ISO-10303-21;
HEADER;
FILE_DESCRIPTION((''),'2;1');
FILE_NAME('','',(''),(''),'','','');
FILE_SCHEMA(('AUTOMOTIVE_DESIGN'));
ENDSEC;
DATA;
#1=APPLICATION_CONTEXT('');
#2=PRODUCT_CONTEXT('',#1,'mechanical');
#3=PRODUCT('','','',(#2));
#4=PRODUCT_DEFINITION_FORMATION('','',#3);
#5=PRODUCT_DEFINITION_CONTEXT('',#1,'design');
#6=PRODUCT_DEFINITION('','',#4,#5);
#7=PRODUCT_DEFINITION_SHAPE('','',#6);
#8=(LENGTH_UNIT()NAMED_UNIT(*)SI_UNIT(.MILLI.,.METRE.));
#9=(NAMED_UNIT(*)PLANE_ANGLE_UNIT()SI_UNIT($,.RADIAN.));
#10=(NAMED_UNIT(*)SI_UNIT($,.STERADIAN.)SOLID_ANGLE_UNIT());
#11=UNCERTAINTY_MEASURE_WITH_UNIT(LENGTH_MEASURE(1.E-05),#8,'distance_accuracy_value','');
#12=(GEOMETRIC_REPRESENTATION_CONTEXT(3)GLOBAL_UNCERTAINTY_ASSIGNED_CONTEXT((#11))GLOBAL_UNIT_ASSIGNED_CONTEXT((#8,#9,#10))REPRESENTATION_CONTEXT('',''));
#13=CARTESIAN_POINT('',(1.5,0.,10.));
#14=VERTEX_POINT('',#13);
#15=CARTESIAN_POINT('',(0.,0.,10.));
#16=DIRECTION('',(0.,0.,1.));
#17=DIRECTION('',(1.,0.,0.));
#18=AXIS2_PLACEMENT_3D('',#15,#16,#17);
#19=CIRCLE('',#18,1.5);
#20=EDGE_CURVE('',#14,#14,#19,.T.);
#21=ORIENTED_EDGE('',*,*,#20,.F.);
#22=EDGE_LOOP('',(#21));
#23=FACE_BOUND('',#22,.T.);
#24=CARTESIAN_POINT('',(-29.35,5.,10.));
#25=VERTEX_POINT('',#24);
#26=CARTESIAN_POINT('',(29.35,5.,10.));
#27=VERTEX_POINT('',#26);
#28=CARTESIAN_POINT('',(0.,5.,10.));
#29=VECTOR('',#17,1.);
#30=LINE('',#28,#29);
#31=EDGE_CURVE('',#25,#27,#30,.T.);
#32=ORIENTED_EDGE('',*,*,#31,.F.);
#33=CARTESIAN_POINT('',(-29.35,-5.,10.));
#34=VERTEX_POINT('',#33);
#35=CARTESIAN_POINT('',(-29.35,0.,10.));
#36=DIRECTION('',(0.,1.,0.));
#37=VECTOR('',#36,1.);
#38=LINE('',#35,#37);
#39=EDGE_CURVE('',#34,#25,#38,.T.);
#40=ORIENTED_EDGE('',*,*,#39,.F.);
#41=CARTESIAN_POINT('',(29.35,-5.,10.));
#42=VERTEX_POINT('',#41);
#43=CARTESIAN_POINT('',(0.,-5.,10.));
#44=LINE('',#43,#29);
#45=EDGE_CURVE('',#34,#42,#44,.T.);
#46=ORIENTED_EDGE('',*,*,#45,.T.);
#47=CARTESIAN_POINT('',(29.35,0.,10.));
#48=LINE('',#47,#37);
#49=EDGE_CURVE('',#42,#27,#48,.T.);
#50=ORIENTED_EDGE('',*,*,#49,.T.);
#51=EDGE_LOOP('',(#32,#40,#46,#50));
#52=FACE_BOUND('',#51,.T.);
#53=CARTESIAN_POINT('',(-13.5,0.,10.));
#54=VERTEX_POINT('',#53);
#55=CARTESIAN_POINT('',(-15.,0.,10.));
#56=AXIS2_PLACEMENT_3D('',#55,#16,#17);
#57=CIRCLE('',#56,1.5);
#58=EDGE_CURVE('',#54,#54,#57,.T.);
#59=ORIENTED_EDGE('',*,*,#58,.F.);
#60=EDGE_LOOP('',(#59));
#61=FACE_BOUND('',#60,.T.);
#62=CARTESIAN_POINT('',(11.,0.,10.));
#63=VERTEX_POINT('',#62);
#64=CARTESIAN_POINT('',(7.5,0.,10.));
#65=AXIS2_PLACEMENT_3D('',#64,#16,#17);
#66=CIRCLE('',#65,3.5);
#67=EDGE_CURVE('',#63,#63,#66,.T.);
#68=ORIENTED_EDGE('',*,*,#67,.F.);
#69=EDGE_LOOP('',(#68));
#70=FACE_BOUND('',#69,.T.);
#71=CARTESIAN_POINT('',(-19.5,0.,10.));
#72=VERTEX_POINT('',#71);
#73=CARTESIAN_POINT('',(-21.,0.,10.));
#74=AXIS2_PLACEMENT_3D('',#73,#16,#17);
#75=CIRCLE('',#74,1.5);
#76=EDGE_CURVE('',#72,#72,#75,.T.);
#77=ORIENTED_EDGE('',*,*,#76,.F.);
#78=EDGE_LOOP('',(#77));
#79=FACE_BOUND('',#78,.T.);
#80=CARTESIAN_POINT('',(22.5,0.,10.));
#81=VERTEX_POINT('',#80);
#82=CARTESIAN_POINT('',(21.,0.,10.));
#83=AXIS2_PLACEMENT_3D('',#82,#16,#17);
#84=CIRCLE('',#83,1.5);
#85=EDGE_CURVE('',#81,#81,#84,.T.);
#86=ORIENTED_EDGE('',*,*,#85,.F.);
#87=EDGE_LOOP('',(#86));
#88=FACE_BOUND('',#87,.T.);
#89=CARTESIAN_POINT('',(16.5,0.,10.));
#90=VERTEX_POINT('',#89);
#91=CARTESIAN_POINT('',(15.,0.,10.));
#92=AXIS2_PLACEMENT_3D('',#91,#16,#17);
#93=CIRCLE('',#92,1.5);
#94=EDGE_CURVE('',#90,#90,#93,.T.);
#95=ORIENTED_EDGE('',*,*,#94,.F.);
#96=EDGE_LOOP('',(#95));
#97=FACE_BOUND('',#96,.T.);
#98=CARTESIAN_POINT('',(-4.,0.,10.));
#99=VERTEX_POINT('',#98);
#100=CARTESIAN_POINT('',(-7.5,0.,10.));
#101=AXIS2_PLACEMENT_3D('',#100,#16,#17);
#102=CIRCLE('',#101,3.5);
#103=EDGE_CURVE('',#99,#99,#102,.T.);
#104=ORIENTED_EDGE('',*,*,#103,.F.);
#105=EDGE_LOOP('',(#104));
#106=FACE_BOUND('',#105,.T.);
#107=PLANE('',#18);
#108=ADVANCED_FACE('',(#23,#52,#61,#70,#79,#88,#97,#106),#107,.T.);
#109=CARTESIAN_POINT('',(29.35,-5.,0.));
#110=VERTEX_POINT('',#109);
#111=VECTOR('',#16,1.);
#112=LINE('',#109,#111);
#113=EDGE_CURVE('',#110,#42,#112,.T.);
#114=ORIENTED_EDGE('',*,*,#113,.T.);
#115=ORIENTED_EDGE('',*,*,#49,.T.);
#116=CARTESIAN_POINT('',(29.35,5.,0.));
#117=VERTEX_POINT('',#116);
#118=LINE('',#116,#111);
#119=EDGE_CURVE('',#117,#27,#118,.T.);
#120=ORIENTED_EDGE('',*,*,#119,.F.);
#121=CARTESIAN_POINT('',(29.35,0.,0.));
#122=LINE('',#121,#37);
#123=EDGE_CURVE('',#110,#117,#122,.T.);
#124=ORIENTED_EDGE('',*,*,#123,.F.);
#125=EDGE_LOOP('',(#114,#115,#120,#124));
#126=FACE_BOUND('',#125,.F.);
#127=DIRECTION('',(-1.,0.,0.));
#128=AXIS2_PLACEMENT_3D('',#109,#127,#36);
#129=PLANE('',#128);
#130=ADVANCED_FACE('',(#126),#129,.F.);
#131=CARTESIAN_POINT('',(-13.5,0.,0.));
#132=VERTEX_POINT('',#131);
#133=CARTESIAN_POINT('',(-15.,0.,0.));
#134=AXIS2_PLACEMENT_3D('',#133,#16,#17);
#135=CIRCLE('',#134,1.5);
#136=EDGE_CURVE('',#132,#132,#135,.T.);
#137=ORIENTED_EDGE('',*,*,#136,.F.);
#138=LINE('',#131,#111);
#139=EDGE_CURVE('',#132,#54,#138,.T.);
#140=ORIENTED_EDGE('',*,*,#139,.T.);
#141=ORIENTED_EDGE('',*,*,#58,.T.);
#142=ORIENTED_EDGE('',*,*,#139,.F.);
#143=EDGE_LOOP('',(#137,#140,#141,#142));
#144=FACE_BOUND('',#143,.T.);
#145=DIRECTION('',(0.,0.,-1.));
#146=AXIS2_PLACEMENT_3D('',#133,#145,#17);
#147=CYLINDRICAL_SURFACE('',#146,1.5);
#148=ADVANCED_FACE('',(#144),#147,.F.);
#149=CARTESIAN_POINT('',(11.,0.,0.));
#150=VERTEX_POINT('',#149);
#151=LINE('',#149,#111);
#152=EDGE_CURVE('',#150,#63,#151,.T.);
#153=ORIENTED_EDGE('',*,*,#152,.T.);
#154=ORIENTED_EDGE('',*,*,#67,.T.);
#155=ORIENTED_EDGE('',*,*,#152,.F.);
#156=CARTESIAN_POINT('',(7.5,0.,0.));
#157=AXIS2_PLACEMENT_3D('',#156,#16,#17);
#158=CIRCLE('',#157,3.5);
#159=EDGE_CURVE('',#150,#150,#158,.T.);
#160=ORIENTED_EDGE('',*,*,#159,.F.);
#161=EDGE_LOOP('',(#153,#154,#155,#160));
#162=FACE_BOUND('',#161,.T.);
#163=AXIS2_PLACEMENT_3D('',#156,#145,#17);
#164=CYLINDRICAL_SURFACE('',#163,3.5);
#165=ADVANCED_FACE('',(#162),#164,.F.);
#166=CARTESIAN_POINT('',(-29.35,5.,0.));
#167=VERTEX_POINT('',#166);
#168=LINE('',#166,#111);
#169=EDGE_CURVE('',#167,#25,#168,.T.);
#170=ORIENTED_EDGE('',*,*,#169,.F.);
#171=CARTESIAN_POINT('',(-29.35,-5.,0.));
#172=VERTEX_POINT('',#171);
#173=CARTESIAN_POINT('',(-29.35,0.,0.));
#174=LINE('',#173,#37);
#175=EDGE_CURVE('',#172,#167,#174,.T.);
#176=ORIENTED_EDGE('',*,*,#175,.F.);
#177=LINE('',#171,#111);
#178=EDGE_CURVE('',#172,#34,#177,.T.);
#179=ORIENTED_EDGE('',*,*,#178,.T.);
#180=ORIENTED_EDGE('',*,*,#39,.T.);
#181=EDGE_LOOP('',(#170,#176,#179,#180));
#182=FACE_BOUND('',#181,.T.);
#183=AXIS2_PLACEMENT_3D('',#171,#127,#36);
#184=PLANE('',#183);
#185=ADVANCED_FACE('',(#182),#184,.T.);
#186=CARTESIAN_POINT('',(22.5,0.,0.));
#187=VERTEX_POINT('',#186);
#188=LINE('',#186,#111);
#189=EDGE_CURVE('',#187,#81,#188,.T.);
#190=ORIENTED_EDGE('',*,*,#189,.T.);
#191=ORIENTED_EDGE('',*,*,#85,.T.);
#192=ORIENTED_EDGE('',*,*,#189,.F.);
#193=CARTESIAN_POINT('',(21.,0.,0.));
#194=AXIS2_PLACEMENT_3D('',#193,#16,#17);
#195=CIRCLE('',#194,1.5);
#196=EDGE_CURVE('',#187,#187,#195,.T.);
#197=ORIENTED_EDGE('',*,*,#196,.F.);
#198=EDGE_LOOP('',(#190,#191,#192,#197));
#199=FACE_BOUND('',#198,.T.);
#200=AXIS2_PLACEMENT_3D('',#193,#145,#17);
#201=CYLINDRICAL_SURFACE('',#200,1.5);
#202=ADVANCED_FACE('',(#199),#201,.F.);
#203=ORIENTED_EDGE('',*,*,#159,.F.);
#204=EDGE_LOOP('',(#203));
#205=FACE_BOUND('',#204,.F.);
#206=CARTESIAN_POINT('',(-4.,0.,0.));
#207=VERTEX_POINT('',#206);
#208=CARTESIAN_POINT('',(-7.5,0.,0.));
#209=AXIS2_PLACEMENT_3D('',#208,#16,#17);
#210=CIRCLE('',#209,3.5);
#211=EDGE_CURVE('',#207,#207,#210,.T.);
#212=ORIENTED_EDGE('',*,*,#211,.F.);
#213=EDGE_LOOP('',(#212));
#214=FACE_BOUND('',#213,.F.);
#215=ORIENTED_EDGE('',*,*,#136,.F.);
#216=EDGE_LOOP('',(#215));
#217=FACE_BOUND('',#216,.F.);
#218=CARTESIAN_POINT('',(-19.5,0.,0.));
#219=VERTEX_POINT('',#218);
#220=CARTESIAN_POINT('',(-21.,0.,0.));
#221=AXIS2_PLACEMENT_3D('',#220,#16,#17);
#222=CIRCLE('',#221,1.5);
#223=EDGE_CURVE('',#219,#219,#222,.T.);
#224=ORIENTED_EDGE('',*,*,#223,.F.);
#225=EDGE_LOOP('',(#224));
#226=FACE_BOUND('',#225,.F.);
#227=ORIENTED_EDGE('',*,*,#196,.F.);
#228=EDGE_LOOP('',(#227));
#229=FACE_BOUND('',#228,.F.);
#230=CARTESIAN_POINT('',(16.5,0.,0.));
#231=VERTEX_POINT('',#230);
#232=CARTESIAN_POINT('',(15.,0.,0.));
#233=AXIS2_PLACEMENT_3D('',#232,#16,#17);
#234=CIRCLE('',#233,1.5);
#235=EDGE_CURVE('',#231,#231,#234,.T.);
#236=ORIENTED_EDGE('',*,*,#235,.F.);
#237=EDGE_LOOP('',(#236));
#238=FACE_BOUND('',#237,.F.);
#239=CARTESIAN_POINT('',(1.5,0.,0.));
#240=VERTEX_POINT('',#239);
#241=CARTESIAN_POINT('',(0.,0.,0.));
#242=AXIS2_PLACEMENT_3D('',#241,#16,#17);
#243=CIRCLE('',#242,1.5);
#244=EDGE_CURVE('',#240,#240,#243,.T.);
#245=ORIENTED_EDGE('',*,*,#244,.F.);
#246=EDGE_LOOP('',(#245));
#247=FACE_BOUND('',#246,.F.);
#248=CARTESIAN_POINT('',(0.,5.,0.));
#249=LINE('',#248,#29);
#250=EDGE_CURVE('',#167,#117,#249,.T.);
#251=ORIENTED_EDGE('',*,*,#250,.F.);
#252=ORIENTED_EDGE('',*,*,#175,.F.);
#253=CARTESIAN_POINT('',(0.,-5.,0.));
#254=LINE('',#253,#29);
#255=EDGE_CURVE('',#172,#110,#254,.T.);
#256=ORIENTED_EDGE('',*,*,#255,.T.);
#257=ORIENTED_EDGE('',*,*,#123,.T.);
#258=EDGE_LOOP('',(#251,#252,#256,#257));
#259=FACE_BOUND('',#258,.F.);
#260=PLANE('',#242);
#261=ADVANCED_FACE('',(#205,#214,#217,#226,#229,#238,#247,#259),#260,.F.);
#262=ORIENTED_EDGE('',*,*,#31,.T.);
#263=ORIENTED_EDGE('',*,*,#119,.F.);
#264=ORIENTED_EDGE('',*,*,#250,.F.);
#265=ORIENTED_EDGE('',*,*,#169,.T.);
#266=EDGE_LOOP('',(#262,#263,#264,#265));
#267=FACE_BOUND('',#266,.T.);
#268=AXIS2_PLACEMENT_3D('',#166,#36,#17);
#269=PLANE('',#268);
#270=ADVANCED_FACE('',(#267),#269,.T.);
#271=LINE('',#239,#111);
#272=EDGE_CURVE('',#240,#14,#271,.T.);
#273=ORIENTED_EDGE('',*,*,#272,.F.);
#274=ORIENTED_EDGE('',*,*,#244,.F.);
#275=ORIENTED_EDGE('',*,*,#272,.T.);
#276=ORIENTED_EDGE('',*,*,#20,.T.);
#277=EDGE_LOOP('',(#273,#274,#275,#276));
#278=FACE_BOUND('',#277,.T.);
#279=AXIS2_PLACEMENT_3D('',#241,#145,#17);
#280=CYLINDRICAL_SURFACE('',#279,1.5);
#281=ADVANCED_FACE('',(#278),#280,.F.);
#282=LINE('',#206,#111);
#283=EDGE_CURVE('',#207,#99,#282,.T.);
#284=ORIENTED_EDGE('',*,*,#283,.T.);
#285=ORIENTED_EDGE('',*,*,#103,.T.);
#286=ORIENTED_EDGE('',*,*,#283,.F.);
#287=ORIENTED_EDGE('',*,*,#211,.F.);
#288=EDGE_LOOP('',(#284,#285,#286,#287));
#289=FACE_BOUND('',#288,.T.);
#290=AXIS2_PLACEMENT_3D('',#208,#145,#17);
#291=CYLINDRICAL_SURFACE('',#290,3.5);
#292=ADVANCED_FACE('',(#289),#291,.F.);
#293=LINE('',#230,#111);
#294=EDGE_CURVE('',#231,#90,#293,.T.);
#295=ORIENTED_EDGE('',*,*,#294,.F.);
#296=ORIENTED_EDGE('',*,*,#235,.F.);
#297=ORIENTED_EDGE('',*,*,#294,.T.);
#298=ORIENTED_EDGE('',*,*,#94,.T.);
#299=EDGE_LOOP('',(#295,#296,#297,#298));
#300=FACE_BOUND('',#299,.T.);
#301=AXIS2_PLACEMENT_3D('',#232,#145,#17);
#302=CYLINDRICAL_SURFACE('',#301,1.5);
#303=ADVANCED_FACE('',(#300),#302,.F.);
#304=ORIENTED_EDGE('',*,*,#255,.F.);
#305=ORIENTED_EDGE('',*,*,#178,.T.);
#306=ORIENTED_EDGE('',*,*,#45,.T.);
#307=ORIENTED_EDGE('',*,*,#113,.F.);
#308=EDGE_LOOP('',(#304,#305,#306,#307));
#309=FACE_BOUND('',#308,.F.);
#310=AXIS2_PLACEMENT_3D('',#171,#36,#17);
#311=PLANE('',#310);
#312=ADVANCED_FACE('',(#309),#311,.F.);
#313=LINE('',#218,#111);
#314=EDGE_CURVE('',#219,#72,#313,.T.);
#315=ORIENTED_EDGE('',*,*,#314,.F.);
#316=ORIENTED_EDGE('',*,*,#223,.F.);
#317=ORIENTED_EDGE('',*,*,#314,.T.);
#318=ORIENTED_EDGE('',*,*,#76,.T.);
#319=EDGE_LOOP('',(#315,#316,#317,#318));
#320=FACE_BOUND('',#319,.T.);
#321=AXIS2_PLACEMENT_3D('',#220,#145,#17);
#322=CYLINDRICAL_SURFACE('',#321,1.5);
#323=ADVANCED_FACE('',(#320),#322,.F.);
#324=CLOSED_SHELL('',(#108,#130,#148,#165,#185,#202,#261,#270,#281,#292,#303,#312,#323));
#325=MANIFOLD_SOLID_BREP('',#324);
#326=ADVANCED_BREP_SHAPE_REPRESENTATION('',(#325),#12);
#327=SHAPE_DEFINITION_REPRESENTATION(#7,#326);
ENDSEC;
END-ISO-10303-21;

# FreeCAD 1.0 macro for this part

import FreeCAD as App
import Part
import Sketcher
from FreeCAD import Vector


def add_polygon(sketch, points):
    """Adds a closed chain of lines whose ends are joined by coincident constraints."""
    first, n = sketch.GeometryCount, len(points)
    for a, b in zip(points, points[1:] + points[:1]):
        sketch.addGeometry(Part.LineSegment(App.Vector(*a, 0), App.Vector(*b, 0)), False)
    for i in range(n):
        sketch.addConstraint(Sketcher.Constraint("Coincident", first + i, 2, first + (i + 1) % n, 1))

doc = App.newDocument("Part")
params = doc.addObject("Spreadsheet::Sheet", "Params")
for row, (alias, value) in enumerate([
    ("sketch1_diameter", "3 mm"),
    ("sketch1_diameter2", "7 mm"),
    ("sketch1_height", "10 mm"),
    ("sketch1_width", "58.7 mm"),
    ("pad1_length", "10 mm"),
], start=1):
    params.set(f"A{row}", alias)
    params.set(f"B{row}", "=" + value)
    params.setAlias(f"B{row}", alias)

body = doc.addObject("PartDesign::Body", "Body")

sketch1 = doc.addObject("Sketcher::SketchObject", "Sketch")
body.addObject(sketch1)
sketch1.AttachmentSupport = (doc.XY_Plane, [""])
sketch1.MapMode = "FlatFace"
add_polygon(sketch1, [(-29.35, 5), (-29.35, -5), (29.35, -5), (29.35, 5)])
sketch1.addGeometry(Part.Circle(Vector(-21, 0, 0), Vector(0, 0, 1), 1.5), False)
sketch1.addGeometry(Part.Circle(Vector(-15, 0, 0), Vector(0, 0, 1), 1.5), False)
sketch1.addGeometry(Part.Circle(Vector(-7.5, 0, 0), Vector(0, 0, 1), 3.5), False)
sketch1.addGeometry(Part.Circle(Vector(0, 0, 0), Vector(0, 0, 1), 1.5), False)
sketch1.addGeometry(Part.Circle(Vector(7.5, 0, 0), Vector(0, 0, 1), 3.5), False)
sketch1.addGeometry(Part.Circle(Vector(15, 0, 0), Vector(0, 0, 1), 1.5), False)
sketch1.addGeometry(Part.Circle(Vector(21, 0, 0), Vector(0, 0, 1), 1.5), False)
sketch1.addConstraint([
    Sketcher.Constraint("Vertical", 0),
    Sketcher.Constraint("Horizontal", 1),
    Sketcher.Constraint("Vertical", 2),
    Sketcher.Constraint("Horizontal", 3),
    Sketcher.Constraint("Coincident", 7, 3, -1, 1),
    Sketcher.Constraint("Equal", 4, 5),
    Sketcher.Constraint("Equal", 5, 7),
    Sketcher.Constraint("Equal", 6, 8),
    Sketcher.Constraint("Equal", 7, 9),
    Sketcher.Constraint("Equal", 9, 10),
    Sketcher.Constraint("Symmetric", 6, 3, 8, 3, -1, 1),
    Sketcher.Constraint("Symmetric", 5, 3, 9, 3, -1, 1),
    Sketcher.Constraint("Symmetric", 4, 3, 10, 3, -1, 1),
    Sketcher.Constraint("Symmetric", 0, 2, 2, 2, -1, 1),
    Sketcher.Constraint("PointOnObject", 4, 3, -1),
    Sketcher.Constraint("PointOnObject", 5, 3, -1),
    Sketcher.Constraint("PointOnObject", 6, 3, -1),
    Sketcher.Constraint("Diameter", 4, 3.0),
    Sketcher.Constraint("Diameter", 6, 7.0),
    Sketcher.Constraint("DistanceY", 0, 2, 0, 1, 10.0),
    Sketcher.Constraint("DistanceX", 1, 1, 1, 2, 58.7),
    Sketcher.Constraint("DistanceX", 4, 3, -1, 1, 21.0),
    Sketcher.Constraint("DistanceX", 5, 3, -1, 1, 15.0),
    Sketcher.Constraint("DistanceX", 6, 3, 8, 3, 15.0),
])
sketch1.setExpression("Constraints[21]", "Params.sketch1_diameter")
sketch1.setExpression("Constraints[22]", "Params.sketch1_diameter2")
sketch1.setExpression("Constraints[23]", "Params.sketch1_height")
sketch1.setExpression("Constraints[24]", "Params.sketch1_width")
pad1 = doc.addObject("PartDesign::Pad", "Pad")
body.addObject(pad1)
pad1.Profile = sketch1
pad1.setExpression("Length", "Params.pad1_length")

doc.recompute()
